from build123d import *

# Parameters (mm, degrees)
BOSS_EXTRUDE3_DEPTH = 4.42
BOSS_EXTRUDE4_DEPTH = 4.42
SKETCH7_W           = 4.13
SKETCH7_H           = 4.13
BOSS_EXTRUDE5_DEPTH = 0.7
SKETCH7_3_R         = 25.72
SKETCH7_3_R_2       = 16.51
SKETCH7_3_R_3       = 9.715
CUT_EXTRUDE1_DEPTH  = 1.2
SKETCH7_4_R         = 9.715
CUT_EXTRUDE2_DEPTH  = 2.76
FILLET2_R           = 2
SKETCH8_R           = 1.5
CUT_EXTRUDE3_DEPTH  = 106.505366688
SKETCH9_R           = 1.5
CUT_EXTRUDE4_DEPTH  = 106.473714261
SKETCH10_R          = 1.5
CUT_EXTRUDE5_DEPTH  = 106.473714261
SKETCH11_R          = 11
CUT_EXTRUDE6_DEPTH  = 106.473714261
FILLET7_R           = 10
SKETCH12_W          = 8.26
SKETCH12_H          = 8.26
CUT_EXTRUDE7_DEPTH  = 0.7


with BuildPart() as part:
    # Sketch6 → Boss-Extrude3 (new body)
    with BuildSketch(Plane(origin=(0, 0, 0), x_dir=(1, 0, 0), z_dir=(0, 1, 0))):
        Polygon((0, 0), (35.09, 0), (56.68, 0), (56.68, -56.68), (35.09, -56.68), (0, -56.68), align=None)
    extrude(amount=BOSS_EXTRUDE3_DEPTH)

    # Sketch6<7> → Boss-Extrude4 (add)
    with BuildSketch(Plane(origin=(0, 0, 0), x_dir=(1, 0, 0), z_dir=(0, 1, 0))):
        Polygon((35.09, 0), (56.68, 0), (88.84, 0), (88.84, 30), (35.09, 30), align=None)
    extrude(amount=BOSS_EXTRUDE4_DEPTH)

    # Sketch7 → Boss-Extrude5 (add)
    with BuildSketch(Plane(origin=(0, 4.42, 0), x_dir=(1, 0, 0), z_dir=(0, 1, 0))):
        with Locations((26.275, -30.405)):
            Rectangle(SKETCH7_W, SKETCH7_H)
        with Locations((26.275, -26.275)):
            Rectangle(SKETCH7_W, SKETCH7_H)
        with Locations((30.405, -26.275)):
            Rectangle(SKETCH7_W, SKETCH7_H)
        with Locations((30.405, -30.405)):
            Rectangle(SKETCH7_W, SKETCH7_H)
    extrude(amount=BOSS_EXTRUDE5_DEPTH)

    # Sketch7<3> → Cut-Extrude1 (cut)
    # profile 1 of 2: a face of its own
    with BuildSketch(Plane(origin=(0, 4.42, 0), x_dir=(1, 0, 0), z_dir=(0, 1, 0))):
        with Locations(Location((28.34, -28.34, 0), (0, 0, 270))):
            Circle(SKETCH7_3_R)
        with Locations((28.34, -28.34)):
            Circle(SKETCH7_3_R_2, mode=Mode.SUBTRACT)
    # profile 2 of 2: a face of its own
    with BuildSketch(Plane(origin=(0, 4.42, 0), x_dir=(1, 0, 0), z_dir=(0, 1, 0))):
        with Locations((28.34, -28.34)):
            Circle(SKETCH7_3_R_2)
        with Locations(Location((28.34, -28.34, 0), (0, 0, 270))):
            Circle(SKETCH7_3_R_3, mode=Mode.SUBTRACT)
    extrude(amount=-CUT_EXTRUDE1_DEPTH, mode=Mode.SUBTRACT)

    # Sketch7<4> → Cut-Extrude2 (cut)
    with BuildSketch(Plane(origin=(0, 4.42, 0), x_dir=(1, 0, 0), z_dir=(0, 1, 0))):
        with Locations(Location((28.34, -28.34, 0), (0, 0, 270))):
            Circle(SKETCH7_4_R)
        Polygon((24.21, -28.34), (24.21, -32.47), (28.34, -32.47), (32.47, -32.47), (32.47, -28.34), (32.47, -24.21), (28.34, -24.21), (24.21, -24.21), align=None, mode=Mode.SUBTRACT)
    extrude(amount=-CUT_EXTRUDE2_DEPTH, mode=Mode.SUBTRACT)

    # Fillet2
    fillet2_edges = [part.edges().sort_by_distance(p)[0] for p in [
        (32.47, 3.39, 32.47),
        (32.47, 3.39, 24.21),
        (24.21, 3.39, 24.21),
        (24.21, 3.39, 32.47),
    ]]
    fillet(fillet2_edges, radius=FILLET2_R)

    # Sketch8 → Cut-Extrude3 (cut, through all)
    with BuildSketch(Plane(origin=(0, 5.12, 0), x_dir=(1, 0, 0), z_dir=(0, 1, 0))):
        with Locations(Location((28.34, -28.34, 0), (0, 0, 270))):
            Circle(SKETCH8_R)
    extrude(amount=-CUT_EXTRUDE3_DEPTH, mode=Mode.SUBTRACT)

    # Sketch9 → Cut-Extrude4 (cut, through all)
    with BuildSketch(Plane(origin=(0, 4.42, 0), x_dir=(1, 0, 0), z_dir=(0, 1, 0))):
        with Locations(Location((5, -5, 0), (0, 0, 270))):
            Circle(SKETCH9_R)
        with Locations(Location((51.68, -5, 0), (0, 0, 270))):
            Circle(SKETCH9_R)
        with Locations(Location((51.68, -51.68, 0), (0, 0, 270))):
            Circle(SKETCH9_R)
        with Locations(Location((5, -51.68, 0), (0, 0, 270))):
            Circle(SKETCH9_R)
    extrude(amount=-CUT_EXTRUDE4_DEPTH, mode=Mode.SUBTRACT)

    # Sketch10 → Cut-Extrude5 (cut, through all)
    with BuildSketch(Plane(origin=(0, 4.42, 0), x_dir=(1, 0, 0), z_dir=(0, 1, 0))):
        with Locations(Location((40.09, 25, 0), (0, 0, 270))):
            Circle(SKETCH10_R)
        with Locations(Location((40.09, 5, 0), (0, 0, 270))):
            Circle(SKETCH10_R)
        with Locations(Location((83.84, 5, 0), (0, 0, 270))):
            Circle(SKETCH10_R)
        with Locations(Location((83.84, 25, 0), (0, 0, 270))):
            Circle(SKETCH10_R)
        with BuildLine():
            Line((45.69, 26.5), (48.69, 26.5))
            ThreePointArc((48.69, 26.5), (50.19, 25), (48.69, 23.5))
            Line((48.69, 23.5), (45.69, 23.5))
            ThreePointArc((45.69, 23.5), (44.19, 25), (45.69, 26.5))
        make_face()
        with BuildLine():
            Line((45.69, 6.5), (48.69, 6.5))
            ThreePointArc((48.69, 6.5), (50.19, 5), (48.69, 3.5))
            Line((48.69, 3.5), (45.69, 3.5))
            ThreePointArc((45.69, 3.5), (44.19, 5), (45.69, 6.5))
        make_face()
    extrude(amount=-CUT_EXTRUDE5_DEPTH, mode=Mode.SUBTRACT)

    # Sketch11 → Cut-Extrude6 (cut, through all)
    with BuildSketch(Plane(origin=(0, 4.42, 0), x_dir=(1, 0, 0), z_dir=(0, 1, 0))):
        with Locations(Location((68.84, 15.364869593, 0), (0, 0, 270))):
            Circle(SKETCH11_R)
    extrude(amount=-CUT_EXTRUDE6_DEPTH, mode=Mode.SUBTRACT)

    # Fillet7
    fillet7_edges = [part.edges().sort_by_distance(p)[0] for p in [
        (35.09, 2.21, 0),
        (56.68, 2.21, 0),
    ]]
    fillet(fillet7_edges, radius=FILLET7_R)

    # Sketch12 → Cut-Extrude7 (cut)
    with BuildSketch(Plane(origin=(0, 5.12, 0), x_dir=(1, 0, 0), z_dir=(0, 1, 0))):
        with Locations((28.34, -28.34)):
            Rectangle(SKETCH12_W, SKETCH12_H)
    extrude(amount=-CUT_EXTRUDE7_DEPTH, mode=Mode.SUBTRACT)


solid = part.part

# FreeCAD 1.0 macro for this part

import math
import FreeCAD as App
import Part
import Sketcher


def edges_at(feature, points):
    """Names of the edges that pass closest to the given points."""
    edges = feature.Shape.Edges
    near = lambda p: min(range(len(edges)), key=lambda i: edges[i].distToShape(Part.Vertex(*p))[0])
    return sorted({f"Edge{near(p) + 1}" for p in points})

doc = App.newDocument("Part")
body = doc.addObject("PartDesign::Body", "Body")

sketch1 = body.newObject("Sketcher::SketchObject", "Sketch")
sketch1.AttachmentSupport = (doc.getObject("XZ_Plane"), [""])
sketch1.MapMode = "FlatFace"
sketch1.addGeometry([
    Part.LineSegment(App.Vector(57, 0, 0), App.Vector(0, 0, 0)),
    Part.LineSegment(App.Vector(0, 0, 0), App.Vector(0, 57, 0)),
    Part.LineSegment(App.Vector(0, 57, 0), App.Vector(57, 57, 0)),
    Part.LineSegment(App.Vector(57, 57, 0), App.Vector(57, 0, 0)),
], False)
sketch1.addConstraint([
    Sketcher.Constraint("Coincident", 0, 2, 1, 1),
    Sketcher.Constraint("Coincident", 1, 2, 2, 1),
    Sketcher.Constraint("Coincident", 2, 2, 3, 1),
    Sketcher.Constraint("Coincident", 3, 2, 0, 1),
    Sketcher.Constraint("Horizontal", 0),
    Sketcher.Constraint("Vertical", 1),
    Sketcher.Constraint("Horizontal", 2),
    Sketcher.Constraint("Vertical", 3),
    Sketcher.Constraint("Coincident", 0, 2, -1, 1),
    Sketcher.Constraint("Equal", 2, 1),
    Sketcher.Constraint("DistanceX", 0, 2, 0, 1, 56.68),
])
pad1 = body.newObject("PartDesign::Pad", "Pad")
pad1.Profile = sketch1
pad1.Length = 4.42
pad1.Reversed = True

sketch2 = body.newObject("Sketcher::SketchObject", "Sketch001")
sketch2.AttachmentSupport = (doc.getObject("XZ_Plane"), [""])
sketch2.MapMode = "FlatFace"
sketch2.addGeometry([
    Part.LineSegment(App.Vector(35, 0, 0), App.Vector(89, 0, 0)),
    Part.LineSegment(App.Vector(89, 0, 0), App.Vector(89, -30, 0)),
    Part.LineSegment(App.Vector(89, -30, 0), App.Vector(35, -30, 0)),
    Part.LineSegment(App.Vector(35, -30, 0), App.Vector(35, 0, 0)),
], False)
sketch2.addConstraint([
    Sketcher.Constraint("Coincident", 0, 2, 1, 1),
    Sketcher.Constraint("Coincident", 1, 2, 2, 1),
    Sketcher.Constraint("Coincident", 2, 2, 3, 1),
    Sketcher.Constraint("Coincident", 3, 2, 0, 1),
    Sketcher.Constraint("Horizontal", 0),
    Sketcher.Constraint("Vertical", 1),
    Sketcher.Constraint("Horizontal", 2),
    Sketcher.Constraint("Vertical", 3),
    Sketcher.Constraint("PointOnObject", 0, 2, -1),
    Sketcher.Constraint("DistanceY", 1, 2, 1, 1, 30.0),
    Sketcher.Constraint("DistanceX", 0, 1, 0, 2, 53.75),
    Sketcher.Constraint("DistanceX", -1, 1, 0, 2, 88.84),
])
pad2 = body.newObject("PartDesign::Pad", "Pad001")
pad2.Profile = sketch2
pad2.Length = 4.42
pad2.Reversed = True

sketch3 = body.newObject("Sketcher::SketchObject", "Sketch002")
sketch3.AttachmentSupport = (doc.getObject("XZ_Plane"), [""])
sketch3.MapMode = "FlatFace"
sketch3.AttachmentOffset = App.Placement(App.Vector(0, 0, -4.42), App.Rotation())
sketch3.addGeometry([
    Part.LineSegment(App.Vector(24, 32, 0), App.Vector(32, 32, 0)),
    Part.LineSegment(App.Vector(32, 32, 0), App.Vector(32, 24, 0)),
    Part.LineSegment(App.Vector(32, 24, 0), App.Vector(24, 24, 0)),
    Part.LineSegment(App.Vector(24, 24, 0), App.Vector(24, 32, 0)),
], False)
sketch3.addConstraint([
    Sketcher.Constraint("Coincident", 0, 2, 1, 1),
    Sketcher.Constraint("Coincident", 1, 2, 2, 1),
    Sketcher.Constraint("Coincident", 2, 2, 3, 1),
    Sketcher.Constraint("Coincident", 3, 2, 0, 1),
    Sketcher.Constraint("Horizontal", 0),
    Sketcher.Constraint("Vertical", 1),
    Sketcher.Constraint("Horizontal", 2),
    Sketcher.Constraint("Vertical", 3),
    Sketcher.Constraint("Equal", 2, 1),
    Sketcher.Constraint("DistanceX", 0, 1, 0, 2, 8.26),
    Sketcher.Constraint("DistanceX", -1, 1, 0, 2, 32.47),
    Sketcher.Constraint("DistanceY", -1, 1, 0, 2, 32.47),
])
pad3 = body.newObject("PartDesign::Pad", "Pad002")
pad3.Profile = sketch3
pad3.Length = 0.7
pad3.Reversed = True

sketch4 = body.newObject("Sketcher::SketchObject", "Sketch003")
sketch4.AttachmentSupport = (doc.getObject("XZ_Plane"), [""])
sketch4.MapMode = "FlatFace"
sketch4.AttachmentOffset = App.Placement(App.Vector(0, 0, -4.42), App.Rotation())
sketch4.addGeometry([
    Part.Circle(App.Vector(28, 28, 0), App.Vector(0, 0, 1), 26),
    Part.Circle(App.Vector(28, 28, 0), App.Vector(0, 0, 1), 10),
], False)
sketch4.addConstraint([
    Sketcher.Constraint("Coincident", 1, 3, 0, 3),
    Sketcher.Constraint("Diameter", 0, 51.44),
    Sketcher.Constraint("Diameter", 1, 19.43),
    Sketcher.Constraint("DistanceX", -1, 1, 0, 3, 28.34),
    Sketcher.Constraint("DistanceY", -1, 1, 0, 3, 28.34),
])
pocket1 = body.newObject("PartDesign::Pocket", "Pocket")
pocket1.Profile = sketch4
pocket1.Length = 1.2
pocket1.Reversed = True

sketch5 = body.newObject("Sketcher::SketchObject", "Sketch004")
sketch5.AttachmentSupport = (doc.getObject("XZ_Plane"), [""])
sketch5.MapMode = "FlatFace"
sketch5.AttachmentOffset = App.Placement(App.Vector(0, 0, -4.42), App.Rotation())
sketch5.addGeometry([
    Part.Circle(App.Vector(28, 28, 0), App.Vector(0, 0, 1), 10),
    Part.LineSegment(App.Vector(24, 32, 0), App.Vector(24, 24, 0)),
    Part.LineSegment(App.Vector(24, 24, 0), App.Vector(32, 24, 0)),
    Part.LineSegment(App.Vector(32, 24, 0), App.Vector(32, 32, 0)),
    Part.LineSegment(App.Vector(32, 32, 0), App.Vector(24, 32, 0)),
], False)
sketch5.addConstraint([
    Sketcher.Constraint("Coincident", 1, 2, 2, 1),
    Sketcher.Constraint("Coincident", 2, 2, 3, 1),
    Sketcher.Constraint("Coincident", 3, 2, 4, 1),
    Sketcher.Constraint("Coincident", 4, 2, 1, 1),
    Sketcher.Constraint("Vertical", 1),
    Sketcher.Constraint("Horizontal", 2),
    Sketcher.Constraint("Vertical", 3),
    Sketcher.Constraint("Horizontal", 4),
    Sketcher.Constraint("Equal", 4, 1),
    Sketcher.Constraint("Diameter", 0, 19.43),
    Sketcher.Constraint("DistanceX", 2, 1, 2, 2, 8.26),
    Sketcher.Constraint("DistanceX", -1, 1, 0, 3, 28.34),
    Sketcher.Constraint("DistanceY", -1, 1, 0, 3, 28.34),
    Sketcher.Constraint("DistanceX", -1, 1, 1, 2, 24.21),
    Sketcher.Constraint("DistanceY", -1, 1, 1, 2, 24.21),
])
pocket2 = body.newObject("PartDesign::Pocket", "Pocket001")
pocket2.Profile = sketch5
pocket2.Length = 2.76
pocket2.Reversed = True
doc.recompute()

fillet = body.newObject("PartDesign::Fillet", "Fillet")
fillet.Base = (pocket2, edges_at(pocket2, [
    (32.47, 3.39, 32.47),
    (32.47, 3.39, 24.21),
    (24.21, 3.39, 24.21),
    (24.21, 3.39, 32.47),
]))
fillet.Radius = 2

sketch6 = body.newObject("Sketcher::SketchObject", "Sketch005")
sketch6.AttachmentSupport = (doc.getObject("XZ_Plane"), [""])
sketch6.MapMode = "FlatFace"
sketch6.AttachmentOffset = App.Placement(App.Vector(0, 0, -5.12), App.Rotation())
sketch6.addGeometry(Part.Circle(App.Vector(28.3, 28.3, 0), App.Vector(0, 0, 1), 1.5), False)
sketch6.addConstraint([
    Sketcher.Constraint("Diameter", 0, 3.0),
    Sketcher.Constraint("DistanceX", -1, 1, 0, 3, 28.34),
    Sketcher.Constraint("DistanceY", -1, 1, 0, 3, 28.34),
])
pocket3 = body.newObject("PartDesign::Pocket", "Pocket002")
pocket3.Profile = sketch6
pocket3.Type = "ThroughAll"
pocket3.Reversed = True

sketch7 = body.newObject("Sketcher::SketchObject", "Sketch006")
sketch7.AttachmentSupport = (doc.getObject("XZ_Plane"), [""])
sketch7.MapMode = "FlatFace"
sketch7.AttachmentOffset = App.Placement(App.Vector(0, 0, -4.42), App.Rotation())
sketch7.addGeometry([
    Part.Circle(App.Vector(5, 5, 0), App.Vector(0, 0, 1), 1.5),
    Part.Circle(App.Vector(51.7, 5, 0), App.Vector(0, 0, 1), 1.5),
    Part.Circle(App.Vector(51.7, 51.7, 0), App.Vector(0, 0, 1), 1.5),
    Part.Circle(App.Vector(5, 51.7, 0), App.Vector(0, 0, 1), 1.5),
], False)
sketch7.addConstraint([
    Sketcher.Constraint("Equal", 0, 1),
    Sketcher.Constraint("Equal", 1, 2),
    Sketcher.Constraint("Equal", 2, 3),
    Sketcher.Constraint("Horizontal", 0, 3, 1, 3),
    Sketcher.Constraint("Horizontal", 2, 3, 3, 3),
    Sketcher.Constraint("Vertical", 1, 3, 2, 3),
    Sketcher.Constraint("Vertical", 0, 3, 3, 3),
    Sketcher.Constraint("Diameter", 0, 3.0),
    Sketcher.Constraint("DistanceX", -1, 1, 0, 3, 5.0),
    Sketcher.Constraint("DistanceY", -1, 1, 0, 3, 5.0),
    Sketcher.Constraint("DistanceX", -1, 1, 1, 3, 51.68),
    Sketcher.Constraint("DistanceY", -1, 1, 2, 3, 51.68),
])
pocket4 = body.newObject("PartDesign::Pocket", "Pocket003")
pocket4.Profile = sketch7
pocket4.Type = "ThroughAll"
pocket4.Reversed = True

sketch8 = body.newObject("Sketcher::SketchObject", "Sketch007")
sketch8.AttachmentSupport = (doc.getObject("XZ_Plane"), [""])
sketch8.MapMode = "FlatFace"
sketch8.AttachmentOffset = App.Placement(App.Vector(0, 0, -4.42), App.Rotation())
sketch8.addGeometry([
    Part.Circle(App.Vector(40.1, -25, 0), App.Vector(0, 0, 1), 1.5),
    Part.Circle(App.Vector(40.1, -5, 0), App.Vector(0, 0, 1), 1.5),
    Part.Circle(App.Vector(83.8, -5, 0), App.Vector(0, 0, 1), 1.5),
    Part.Circle(App.Vector(83.8, -25, 0), App.Vector(0, 0, 1), 1.5),
    Part.LineSegment(App.Vector(48.7, -26.5, 0), App.Vector(45.7, -26.5, 0)),
    Part.ArcOfCircle(Part.Circle(App.Vector(45.7, -25, 0), App.Vector(0, 0, 1), 1.5), math.radians(90), math.radians(270)),
    Part.LineSegment(App.Vector(45.7, -23.5, 0), App.Vector(48.7, -23.5, 0)),
    Part.ArcOfCircle(Part.Circle(App.Vector(48.7, -25, 0), App.Vector(0, 0, 1), 1.5), math.radians(-90), math.radians(90)),
    Part.LineSegment(App.Vector(48.7, -6.5, 0), App.Vector(45.7, -6.5, 0)),
    Part.ArcOfCircle(Part.Circle(App.Vector(45.7, -5, 0), App.Vector(0, 0, 1), 1.5), math.radians(90), math.radians(270)),
    Part.LineSegment(App.Vector(45.7, -3.5, 0), App.Vector(48.7, -3.5, 0)),
    Part.ArcOfCircle(Part.Circle(App.Vector(48.7, -5, 0), App.Vector(0, 0, 1), 1.5), math.radians(-90), math.radians(90)),
], False)
sketch8.addConstraint([
    Sketcher.Constraint("Tangent", 4, 2, 5, 2),
    Sketcher.Constraint("Tangent", 5, 1, 6, 1),
    Sketcher.Constraint("Tangent", 6, 2, 7, 2),
    Sketcher.Constraint("Tangent", 7, 1, 4, 1),
    Sketcher.Constraint("Tangent", 8, 2, 9, 2),
    Sketcher.Constraint("Tangent", 9, 1, 10, 1),
    Sketcher.Constraint("Tangent", 10, 2, 11, 2),
    Sketcher.Constraint("Tangent", 11, 1, 8, 1),
    Sketcher.Constraint("Horizontal", 4),
    Sketcher.Constraint("Horizontal", 6),
    Sketcher.Constraint("Horizontal", 8),
    Sketcher.Constraint("Horizontal", 10),
    Sketcher.Constraint("Equal", 0, 1),
    Sketcher.Constraint("Equal", 1, 2),
    Sketcher.Constraint("Equal", 2, 3),
    Sketcher.Constraint("Equal", 3, 5),
    Sketcher.Constraint("Equal", 7, 9),
    Sketcher.Constraint("Horizontal", 1, 3, 2, 3),
    Sketcher.Constraint("Horizontal", 0, 3, 3, 3),
    Sketcher.Constraint("Horizontal", 3, 3, 5, 3),
    Sketcher.Constraint("Horizontal", 2, 3, 9, 3),
    Sketcher.Constraint("Vertical", 0, 3, 1, 3),
    Sketcher.Constraint("Vertical", 2, 3, 3, 3),
    Sketcher.Constraint("Vertical", 5, 3, 9, 3),
    Sketcher.Constraint("Vertical", 7, 3, 11, 3),
    Sketcher.Constraint("Diameter", 0, 3.0),
    Sketcher.Constraint("DistanceX", 4, 2, 4, 1, 3.0),
    Sketcher.Constraint("DistanceY", 0, 3, -1, 1, 25.0),
    Sketcher.Constraint("DistanceY", 1, 3, -1, 1, 5.0),
    Sketcher.Constraint("DistanceX", 0, 3, 5, 3, 5.6),
    Sketcher.Constraint("DistanceX", -1, 1, 0, 3, 40.09),
    Sketcher.Constraint("DistanceX", -1, 1, 2, 3, 83.84),
])
pocket5 = body.newObject("PartDesign::Pocket", "Pocket004")
pocket5.Profile = sketch8
pocket5.Type = "ThroughAll"
pocket5.Reversed = True

sketch9 = body.newObject("Sketcher::SketchObject", "Sketch008")
sketch9.AttachmentSupport = (doc.getObject("XZ_Plane"), [""])
sketch9.MapMode = "FlatFace"
sketch9.AttachmentOffset = App.Placement(App.Vector(0, 0, -4.42), App.Rotation())
sketch9.addGeometry(Part.Circle(App.Vector(69, -15, 0), App.Vector(0, 0, 1), 11), False)
sketch9.addConstraint([
    Sketcher.Constraint("Diameter", 0, 22.0),
    Sketcher.Constraint("DistanceX", -1, 1, 0, 3, 68.84),
    Sketcher.Constraint("DistanceY", 0, 3, -1, 1, 15.36487),
])
pocket6 = body.newObject("PartDesign::Pocket", "Pocket005")
pocket6.Profile = sketch9
pocket6.Type = "ThroughAll"
pocket6.Reversed = True
doc.recompute()

fillet2 = body.newObject("PartDesign::Fillet", "Fillet001")
fillet2.Base = (pocket6, edges_at(pocket6, [(35.09, 2.21, 0), (56.68, 2.21, 0)]))
fillet2.Radius = 10

sketch10 = body.newObject("Sketcher::SketchObject", "Sketch009")
sketch10.AttachmentSupport = (doc.getObject("XZ_Plane"), [""])
sketch10.MapMode = "FlatFace"
sketch10.AttachmentOffset = App.Placement(App.Vector(0, 0, -5.12), App.Rotation())
sketch10.addGeometry([
    Part.LineSegment(App.Vector(24, 24, 0), App.Vector(24, 32, 0)),
    Part.LineSegment(App.Vector(24, 32, 0), App.Vector(32, 32, 0)),
    Part.LineSegment(App.Vector(32, 32, 0), App.Vector(32, 24, 0)),
    Part.LineSegment(App.Vector(32, 24, 0), App.Vector(24, 24, 0)),
], False)
sketch10.addConstraint([
    Sketcher.Constraint("Coincident", 0, 2, 1, 1),
    Sketcher.Constraint("Coincident", 1, 2, 2, 1),
    Sketcher.Constraint("Coincident", 2, 2, 3, 1),
    Sketcher.Constraint("Coincident", 3, 2, 0, 1),
    Sketcher.Constraint("Vertical", 0),
    Sketcher.Constraint("Horizontal", 1),
    Sketcher.Constraint("Vertical", 2),
    Sketcher.Constraint("Horizontal", 3),
    Sketcher.Constraint("Equal", 3, 0),
    Sketcher.Constraint("DistanceX", 1, 1, 1, 2, 8.26),
    Sketcher.Constraint("DistanceX", -1, 1, 0, 2, 24.21),
    Sketcher.Constraint("DistanceY", -1, 1, 0, 2, 32.47),
])
pocket7 = body.newObject("PartDesign::Pocket", "Pocket006")
pocket7.Profile = sketch10
pocket7.Length = 0.7
pocket7.Reversed = True

doc.recompute()
